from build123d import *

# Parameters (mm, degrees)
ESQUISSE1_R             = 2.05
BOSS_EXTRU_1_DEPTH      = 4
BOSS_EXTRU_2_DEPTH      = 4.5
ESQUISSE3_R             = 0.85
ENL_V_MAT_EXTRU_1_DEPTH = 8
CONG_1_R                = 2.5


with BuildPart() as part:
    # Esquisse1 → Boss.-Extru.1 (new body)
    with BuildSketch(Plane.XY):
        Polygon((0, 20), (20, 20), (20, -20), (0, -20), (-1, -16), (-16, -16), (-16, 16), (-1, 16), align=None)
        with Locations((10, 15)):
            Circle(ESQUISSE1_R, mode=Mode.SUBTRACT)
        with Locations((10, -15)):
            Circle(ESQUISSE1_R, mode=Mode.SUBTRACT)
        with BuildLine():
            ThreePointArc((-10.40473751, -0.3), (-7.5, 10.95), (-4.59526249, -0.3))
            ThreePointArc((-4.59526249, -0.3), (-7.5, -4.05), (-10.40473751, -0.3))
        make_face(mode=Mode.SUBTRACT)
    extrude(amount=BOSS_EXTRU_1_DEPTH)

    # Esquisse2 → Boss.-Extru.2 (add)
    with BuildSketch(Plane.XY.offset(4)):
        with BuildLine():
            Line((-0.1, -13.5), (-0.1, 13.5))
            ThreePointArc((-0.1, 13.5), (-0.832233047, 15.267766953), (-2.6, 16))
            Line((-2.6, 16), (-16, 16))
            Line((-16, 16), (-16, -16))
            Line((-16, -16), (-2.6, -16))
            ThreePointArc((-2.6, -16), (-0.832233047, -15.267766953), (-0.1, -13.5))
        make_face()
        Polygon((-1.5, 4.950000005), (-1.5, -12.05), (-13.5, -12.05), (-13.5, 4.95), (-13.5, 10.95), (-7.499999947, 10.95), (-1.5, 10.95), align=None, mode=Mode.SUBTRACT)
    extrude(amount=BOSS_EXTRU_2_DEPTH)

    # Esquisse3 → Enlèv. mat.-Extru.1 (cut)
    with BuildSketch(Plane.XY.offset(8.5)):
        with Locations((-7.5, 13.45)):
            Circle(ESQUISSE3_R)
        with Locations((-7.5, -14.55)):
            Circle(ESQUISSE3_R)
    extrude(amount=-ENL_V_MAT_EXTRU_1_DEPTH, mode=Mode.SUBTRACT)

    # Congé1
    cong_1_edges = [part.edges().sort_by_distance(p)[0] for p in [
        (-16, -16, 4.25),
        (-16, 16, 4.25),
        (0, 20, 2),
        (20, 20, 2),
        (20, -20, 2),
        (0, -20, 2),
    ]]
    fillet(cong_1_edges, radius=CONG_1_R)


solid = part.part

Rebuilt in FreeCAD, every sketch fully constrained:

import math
import FreeCAD as App
import Part
import Sketcher
from FreeCAD import Vector


def edges_at(feature, points):
    """Names of the edges that pass closest to the given points."""
    edges = feature.Shape.Edges
    near = lambda p: min(range(len(edges)), key=lambda i: edges[i].distToShape(Part.Vertex(*p))[0])
    return sorted({f"Edge{near(p) + 1}" for p in points})

doc = App.newDocument("Part")
body = doc.addObject("PartDesign::Body", "Body")

# Sketch on XY plane
sketch1 = body.newObject("Sketcher::SketchObject", "Sketch")
sketch1.AttachmentSupport = (doc.getObject("XY_Plane"), [""])
sketch1.MapMode = "FlatFace"
sketch1.addGeometry(Part.LineSegment(Vector(20, 20, 0), Vector(0, 20, 0)), False)
sketch1.addGeometry(Part.LineSegment(Vector(0, 20, 0), Vector(-1, 16, 0)), False)
sketch1.addGeometry(Part.LineSegment(Vector(-1, 16, 0), Vector(-16, 16, 0)), False)
sketch1.addGeometry(Part.LineSegment(Vector(-16, 16, 0), Vector(-16, -16, 0)), False)
sketch1.addGeometry(Part.LineSegment(Vector(-16, -16, 0), Vector(-1, -16, 0)), False)
sketch1.addGeometry(Part.LineSegment(Vector(-1, -16, 0), Vector(0, -20, 0)), False)
sketch1.addGeometry(Part.LineSegment(Vector(0, -20, 0), Vector(20, -20, 0)), False)
sketch1.addGeometry(Part.LineSegment(Vector(20, -20, 0), Vector(20, 20, 0)), False)
sketch1.addGeometry(Part.Circle(Vector(10, -15, 0), Vector(0, 0, 1), 2), False)
sketch1.addGeometry(Part.Circle(Vector(10, 15, 0), Vector(0, 0, 1), 2), False)
sketch1.addGeometry(Part.ArcOfCircle(Part.Circle(Vector(-7.5, 5, 0), Vector(0, 0, 1), 6), math.radians(-61), math.radians(241)), False)
sketch1.addGeometry(Part.ArcOfCircle(Part.Circle(Vector(-7.5, -1.1, 0), Vector(0, 0, 1), 3), math.radians(166), math.radians(374)), False)
sketch1.addConstraint(Sketcher.Constraint("Coincident", 0, 2, 1, 1))
sketch1.addConstraint(Sketcher.Constraint("Coincident", 1, 2, 2, 1))
sketch1.addConstraint(Sketcher.Constraint("Coincident", 2, 2, 3, 1))
sketch1.addConstraint(Sketcher.Constraint("Coincident", 3, 2, 4, 1))
sketch1.addConstraint(Sketcher.Constraint("Coincident", 4, 2, 5, 1))
sketch1.addConstraint(Sketcher.Constraint("Coincident", 5, 2, 6, 1))
sketch1.addConstraint(Sketcher.Constraint("Coincident", 6, 2, 7, 1))
sketch1.addConstraint(Sketcher.Constraint("Coincident", 7, 2, 0, 1))
sketch1.addConstraint(Sketcher.Constraint("Coincident", 10, 1, 11, 2))
sketch1.addConstraint(Sketcher.Constraint("Coincident", 11, 1, 10, 2))
sketch1.addConstraint(Sketcher.Constraint("Horizontal", 0))
sketch1.addConstraint(Sketcher.Constraint("Horizontal", 2))
sketch1.addConstraint(Sketcher.Constraint("Vertical", 3))
sketch1.addConstraint(Sketcher.Constraint("Horizontal", 4))
sketch1.addConstraint(Sketcher.Constraint("Horizontal", 6))
sketch1.addConstraint(Sketcher.Constraint("Vertical", 7))
sketch1.addConstraint(Sketcher.Constraint("Equal", 8, 9))
sketch1.addConstraint(Sketcher.Constraint("Symmetric", 0, 2, 5, 2, -1, 1))
sketch1.addConstraint(Sketcher.Constraint("Symmetric", 8, 3, 9, 3, -1))
sketch1.addConstraint(Sketcher.Constraint("Symmetric", 1, 2, 4, 2, -1))
sketch1.addConstraint(Sketcher.Constraint("PointOnObject", 0, 2, -2))
sketch1.addConstraint(Sketcher.Constraint("Horizontal", 10, 1, 11, 1))
sketch1.addConstraint(Sketcher.Constraint("Radius", 10, 6.0))
sketch1.addConstraint(Sketcher.Constraint("Radius", 11, 3.0))
sketch1.addConstraint(Sketcher.Constraint("Diameter", 8, 4.1))
sketch1.addConstraint(Sketcher.Constraint("DistanceX", 0, 2, 0, 1, 20.0))
sketch1.addConstraint(Sketcher.Constraint("DistanceX", 2, 2, 2, 1, 15.0))
sketch1.addConstraint(Sketcher.Constraint("DistanceY", 3, 2, 3, 1, 32.0))
sketch1.addConstraint(Sketcher.Constraint("DistanceY", 7, 1, 7, 2, 40.0))
sketch1.addConstraint(Sketcher.Constraint("DistanceX", -1, 1, 8, 3, 10.0))
sketch1.addConstraint(Sketcher.Constraint("DistanceY", 8, 3, -1, 1, 15.0))
sketch1.addConstraint(Sketcher.Constraint("DistanceX", 1, 2, -1, 1, 1.0))
sketch1.addConstraint(Sketcher.Constraint("DistanceY", 11, 3, 10, 3, 6.0))
sketch1.addConstraint(Sketcher.Constraint("DistanceX", 10, 3, -1, 1, 7.5))
sketch1.addConstraint(Sketcher.Constraint("DistanceY", 10, 1, -1, 1, 0.3))
pad1 = body.newObject("PartDesign::Pad", "Pad")
pad1.Profile = sketch1
pad1.Length = 4

# Sketch on XY plane
sketch2 = body.newObject("Sketcher::SketchObject", "Sketch001")
sketch2.AttachmentSupport = (doc.getObject("XY_Plane"), [""])
sketch2.MapMode = "FlatFace"
sketch2.AttachmentOffset = App.Placement(Vector(0, 0, 4), App.Rotation())
sketch2.addGeometry(Part.LineSegment(Vector(-0.1, -13.5, 0), Vector(-0.1, 13.5, 0)), False)
sketch2.addGeometry(Part.ArcOfCircle(Part.Circle(Vector(-2.6, 13.5, 0), Vector(0, 0, 1), 2.5), math.radians(0), math.radians(90)), False)
sketch2.addGeometry(Part.LineSegment(Vector(-2.6, 16, 0), Vector(-16, 16, 0)), False)
sketch2.addGeometry(Part.LineSegment(Vector(-16, 16, 0), Vector(-16, -16, 0)), False)
sketch2.addGeometry(Part.LineSegment(Vector(-16, -16, 0), Vector(-2.6, -16, 0)), False)
sketch2.addGeometry(Part.ArcOfCircle(Part.Circle(Vector(-2.6, -13.5, 0), Vector(0, 0, 1), 2.5), math.radians(-90), math.radians(0)), False)
sketch2.addGeometry(Part.LineSegment(Vector(-1.5, 10.9, 0), Vector(-1.5, -12.1, 0)), False)
sketch2.addGeometry(Part.LineSegment(Vector(-1.5, -12.1, 0), Vector(-13.5, -12.1, 0)), False)
sketch2.addGeometry(Part.LineSegment(Vector(-13.5, -12.1, 0), Vector(-13.5, 10.9, 0)), False)
sketch2.addGeometry(Part.LineSegment(Vector(-13.5, 10.9, 0), Vector(-1.5, 10.9, 0)), False)
sketch2.addConstraint(Sketcher.Constraint("Tangent", 0, 2, 1, 1))
sketch2.addConstraint(Sketcher.Constraint("Tangent", 1, 2, 2, 1))
sketch2.addConstraint(Sketcher.Constraint("Coincident", 2, 2, 3, 1))
sketch2.addConstraint(Sketcher.Constraint("Coincident", 3, 2, 4, 1))
sketch2.addConstraint(Sketcher.Constraint("Tangent", 4, 2, 5, 1))
sketch2.addConstraint(Sketcher.Constraint("Tangent", 5, 2, 0, 1))
sketch2.addConstraint(Sketcher.Constraint("Coincident", 6, 2, 7, 1))
sketch2.addConstraint(Sketcher.Constraint("Coincident", 7, 2, 8, 1))
sketch2.addConstraint(Sketcher.Constraint("Coincident", 8, 2, 9, 1))
sketch2.addConstraint(Sketcher.Constraint("Coincident", 9, 2, 6, 1))
sketch2.addConstraint(Sketcher.Constraint("Vertical", 0))
sketch2.addConstraint(Sketcher.Constraint("Horizontal", 2))
sketch2.addConstraint(Sketcher.Constraint("Vertical", 3))
sketch2.addConstraint(Sketcher.Constraint("Horizontal", 4))
sketch2.addConstraint(Sketcher.Constraint("Vertical", 6))
sketch2.addConstraint(Sketcher.Constraint("Horizontal", 7))
sketch2.addConstraint(Sketcher.Constraint("Vertical", 8))
sketch2.addConstraint(Sketcher.Constraint("Horizontal", 9))
sketch2.addConstraint(Sketcher.Constraint("Equal", 1, 5))
sketch2.addConstraint(Sketcher.Constraint("Radius", 1, 2.5))
sketch2.addConstraint(Sketcher.Constraint("DistanceX", 7, 2, 7, 1, 12.0))
sketch2.addConstraint(Sketcher.Constraint("DistanceY", 0, 1, 0, 2, 27.0))
sketch2.addConstraint(Sketcher.Constraint("DistanceY", 6, 2, 6, 1, 23.0))
sketch2.addConstraint(Sketcher.Constraint("DistanceX", 2, 2, 2, 1, 13.4))
sketch2.addConstraint(Sketcher.Constraint("DistanceY", -1, 1, 1, 2, 16.0))
sketch2.addConstraint(Sketcher.Constraint("DistanceX", 2, 2, -1, 1, 16.0))
sketch2.addConstraint(Sketcher.Constraint("DistanceX", 6, 2, -1, 1, 1.5))
sketch2.addConstraint(Sketcher.Constraint("DistanceY", 6, 2, -1, 1, 12.05))
pad2 = body.newObject("PartDesign::Pad", "Pad001")
pad2.Profile = sketch2
pad2.Length = 4.5

# Sketch on XY plane
sketch3 = body.newObject("Sketcher::SketchObject", "Sketch002")
sketch3.AttachmentSupport = (doc.getObject("XY_Plane"), [""])
sketch3.MapMode = "FlatFace"
sketch3.AttachmentOffset = App.Placement(Vector(0, 0, 8.5), App.Rotation())
sketch3.addGeometry(Part.Circle(Vector(-7.5, 13.4, 0), Vector(0, 0, 1), 0.8), False)
sketch3.addGeometry(Part.Circle(Vector(-7.5, -14.6, 0), Vector(0, 0, 1), 0.8), False)
sketch3.addConstraint(Sketcher.Constraint("Equal", 0, 1))
sketch3.addConstraint(Sketcher.Constraint("Vertical", 0, 3, 1, 3))
sketch3.addConstraint(Sketcher.Constraint("Diameter", 0, 1.7))
sketch3.addConstraint(Sketcher.Constraint("DistanceY", 1, 3, 0, 3, 28.0))
sketch3.addConstraint(Sketcher.Constraint("DistanceX", 0, 3, -1, 1, 7.5))
sketch3.addConstraint(Sketcher.Constraint("DistanceY", -1, 1, 0, 3, 13.45))
pocket1 = body.newObject("PartDesign::Pocket", "Pocket")
pocket1.Profile = sketch3
pocket1.Length = 8
doc.recompute()

fillet = body.newObject("PartDesign::Fillet", "Fillet")
fillet.Base = (pocket1, edges_at(pocket1, [
    (-16, -16, 4.25),
    (-16, 16, 4.25),
    (0, 20, 2),
    (20, 20, 2),
    (20, -20, 2),
    (0, -20, 2),
]))
fillet.Radius = 2.5

doc.recompute()
